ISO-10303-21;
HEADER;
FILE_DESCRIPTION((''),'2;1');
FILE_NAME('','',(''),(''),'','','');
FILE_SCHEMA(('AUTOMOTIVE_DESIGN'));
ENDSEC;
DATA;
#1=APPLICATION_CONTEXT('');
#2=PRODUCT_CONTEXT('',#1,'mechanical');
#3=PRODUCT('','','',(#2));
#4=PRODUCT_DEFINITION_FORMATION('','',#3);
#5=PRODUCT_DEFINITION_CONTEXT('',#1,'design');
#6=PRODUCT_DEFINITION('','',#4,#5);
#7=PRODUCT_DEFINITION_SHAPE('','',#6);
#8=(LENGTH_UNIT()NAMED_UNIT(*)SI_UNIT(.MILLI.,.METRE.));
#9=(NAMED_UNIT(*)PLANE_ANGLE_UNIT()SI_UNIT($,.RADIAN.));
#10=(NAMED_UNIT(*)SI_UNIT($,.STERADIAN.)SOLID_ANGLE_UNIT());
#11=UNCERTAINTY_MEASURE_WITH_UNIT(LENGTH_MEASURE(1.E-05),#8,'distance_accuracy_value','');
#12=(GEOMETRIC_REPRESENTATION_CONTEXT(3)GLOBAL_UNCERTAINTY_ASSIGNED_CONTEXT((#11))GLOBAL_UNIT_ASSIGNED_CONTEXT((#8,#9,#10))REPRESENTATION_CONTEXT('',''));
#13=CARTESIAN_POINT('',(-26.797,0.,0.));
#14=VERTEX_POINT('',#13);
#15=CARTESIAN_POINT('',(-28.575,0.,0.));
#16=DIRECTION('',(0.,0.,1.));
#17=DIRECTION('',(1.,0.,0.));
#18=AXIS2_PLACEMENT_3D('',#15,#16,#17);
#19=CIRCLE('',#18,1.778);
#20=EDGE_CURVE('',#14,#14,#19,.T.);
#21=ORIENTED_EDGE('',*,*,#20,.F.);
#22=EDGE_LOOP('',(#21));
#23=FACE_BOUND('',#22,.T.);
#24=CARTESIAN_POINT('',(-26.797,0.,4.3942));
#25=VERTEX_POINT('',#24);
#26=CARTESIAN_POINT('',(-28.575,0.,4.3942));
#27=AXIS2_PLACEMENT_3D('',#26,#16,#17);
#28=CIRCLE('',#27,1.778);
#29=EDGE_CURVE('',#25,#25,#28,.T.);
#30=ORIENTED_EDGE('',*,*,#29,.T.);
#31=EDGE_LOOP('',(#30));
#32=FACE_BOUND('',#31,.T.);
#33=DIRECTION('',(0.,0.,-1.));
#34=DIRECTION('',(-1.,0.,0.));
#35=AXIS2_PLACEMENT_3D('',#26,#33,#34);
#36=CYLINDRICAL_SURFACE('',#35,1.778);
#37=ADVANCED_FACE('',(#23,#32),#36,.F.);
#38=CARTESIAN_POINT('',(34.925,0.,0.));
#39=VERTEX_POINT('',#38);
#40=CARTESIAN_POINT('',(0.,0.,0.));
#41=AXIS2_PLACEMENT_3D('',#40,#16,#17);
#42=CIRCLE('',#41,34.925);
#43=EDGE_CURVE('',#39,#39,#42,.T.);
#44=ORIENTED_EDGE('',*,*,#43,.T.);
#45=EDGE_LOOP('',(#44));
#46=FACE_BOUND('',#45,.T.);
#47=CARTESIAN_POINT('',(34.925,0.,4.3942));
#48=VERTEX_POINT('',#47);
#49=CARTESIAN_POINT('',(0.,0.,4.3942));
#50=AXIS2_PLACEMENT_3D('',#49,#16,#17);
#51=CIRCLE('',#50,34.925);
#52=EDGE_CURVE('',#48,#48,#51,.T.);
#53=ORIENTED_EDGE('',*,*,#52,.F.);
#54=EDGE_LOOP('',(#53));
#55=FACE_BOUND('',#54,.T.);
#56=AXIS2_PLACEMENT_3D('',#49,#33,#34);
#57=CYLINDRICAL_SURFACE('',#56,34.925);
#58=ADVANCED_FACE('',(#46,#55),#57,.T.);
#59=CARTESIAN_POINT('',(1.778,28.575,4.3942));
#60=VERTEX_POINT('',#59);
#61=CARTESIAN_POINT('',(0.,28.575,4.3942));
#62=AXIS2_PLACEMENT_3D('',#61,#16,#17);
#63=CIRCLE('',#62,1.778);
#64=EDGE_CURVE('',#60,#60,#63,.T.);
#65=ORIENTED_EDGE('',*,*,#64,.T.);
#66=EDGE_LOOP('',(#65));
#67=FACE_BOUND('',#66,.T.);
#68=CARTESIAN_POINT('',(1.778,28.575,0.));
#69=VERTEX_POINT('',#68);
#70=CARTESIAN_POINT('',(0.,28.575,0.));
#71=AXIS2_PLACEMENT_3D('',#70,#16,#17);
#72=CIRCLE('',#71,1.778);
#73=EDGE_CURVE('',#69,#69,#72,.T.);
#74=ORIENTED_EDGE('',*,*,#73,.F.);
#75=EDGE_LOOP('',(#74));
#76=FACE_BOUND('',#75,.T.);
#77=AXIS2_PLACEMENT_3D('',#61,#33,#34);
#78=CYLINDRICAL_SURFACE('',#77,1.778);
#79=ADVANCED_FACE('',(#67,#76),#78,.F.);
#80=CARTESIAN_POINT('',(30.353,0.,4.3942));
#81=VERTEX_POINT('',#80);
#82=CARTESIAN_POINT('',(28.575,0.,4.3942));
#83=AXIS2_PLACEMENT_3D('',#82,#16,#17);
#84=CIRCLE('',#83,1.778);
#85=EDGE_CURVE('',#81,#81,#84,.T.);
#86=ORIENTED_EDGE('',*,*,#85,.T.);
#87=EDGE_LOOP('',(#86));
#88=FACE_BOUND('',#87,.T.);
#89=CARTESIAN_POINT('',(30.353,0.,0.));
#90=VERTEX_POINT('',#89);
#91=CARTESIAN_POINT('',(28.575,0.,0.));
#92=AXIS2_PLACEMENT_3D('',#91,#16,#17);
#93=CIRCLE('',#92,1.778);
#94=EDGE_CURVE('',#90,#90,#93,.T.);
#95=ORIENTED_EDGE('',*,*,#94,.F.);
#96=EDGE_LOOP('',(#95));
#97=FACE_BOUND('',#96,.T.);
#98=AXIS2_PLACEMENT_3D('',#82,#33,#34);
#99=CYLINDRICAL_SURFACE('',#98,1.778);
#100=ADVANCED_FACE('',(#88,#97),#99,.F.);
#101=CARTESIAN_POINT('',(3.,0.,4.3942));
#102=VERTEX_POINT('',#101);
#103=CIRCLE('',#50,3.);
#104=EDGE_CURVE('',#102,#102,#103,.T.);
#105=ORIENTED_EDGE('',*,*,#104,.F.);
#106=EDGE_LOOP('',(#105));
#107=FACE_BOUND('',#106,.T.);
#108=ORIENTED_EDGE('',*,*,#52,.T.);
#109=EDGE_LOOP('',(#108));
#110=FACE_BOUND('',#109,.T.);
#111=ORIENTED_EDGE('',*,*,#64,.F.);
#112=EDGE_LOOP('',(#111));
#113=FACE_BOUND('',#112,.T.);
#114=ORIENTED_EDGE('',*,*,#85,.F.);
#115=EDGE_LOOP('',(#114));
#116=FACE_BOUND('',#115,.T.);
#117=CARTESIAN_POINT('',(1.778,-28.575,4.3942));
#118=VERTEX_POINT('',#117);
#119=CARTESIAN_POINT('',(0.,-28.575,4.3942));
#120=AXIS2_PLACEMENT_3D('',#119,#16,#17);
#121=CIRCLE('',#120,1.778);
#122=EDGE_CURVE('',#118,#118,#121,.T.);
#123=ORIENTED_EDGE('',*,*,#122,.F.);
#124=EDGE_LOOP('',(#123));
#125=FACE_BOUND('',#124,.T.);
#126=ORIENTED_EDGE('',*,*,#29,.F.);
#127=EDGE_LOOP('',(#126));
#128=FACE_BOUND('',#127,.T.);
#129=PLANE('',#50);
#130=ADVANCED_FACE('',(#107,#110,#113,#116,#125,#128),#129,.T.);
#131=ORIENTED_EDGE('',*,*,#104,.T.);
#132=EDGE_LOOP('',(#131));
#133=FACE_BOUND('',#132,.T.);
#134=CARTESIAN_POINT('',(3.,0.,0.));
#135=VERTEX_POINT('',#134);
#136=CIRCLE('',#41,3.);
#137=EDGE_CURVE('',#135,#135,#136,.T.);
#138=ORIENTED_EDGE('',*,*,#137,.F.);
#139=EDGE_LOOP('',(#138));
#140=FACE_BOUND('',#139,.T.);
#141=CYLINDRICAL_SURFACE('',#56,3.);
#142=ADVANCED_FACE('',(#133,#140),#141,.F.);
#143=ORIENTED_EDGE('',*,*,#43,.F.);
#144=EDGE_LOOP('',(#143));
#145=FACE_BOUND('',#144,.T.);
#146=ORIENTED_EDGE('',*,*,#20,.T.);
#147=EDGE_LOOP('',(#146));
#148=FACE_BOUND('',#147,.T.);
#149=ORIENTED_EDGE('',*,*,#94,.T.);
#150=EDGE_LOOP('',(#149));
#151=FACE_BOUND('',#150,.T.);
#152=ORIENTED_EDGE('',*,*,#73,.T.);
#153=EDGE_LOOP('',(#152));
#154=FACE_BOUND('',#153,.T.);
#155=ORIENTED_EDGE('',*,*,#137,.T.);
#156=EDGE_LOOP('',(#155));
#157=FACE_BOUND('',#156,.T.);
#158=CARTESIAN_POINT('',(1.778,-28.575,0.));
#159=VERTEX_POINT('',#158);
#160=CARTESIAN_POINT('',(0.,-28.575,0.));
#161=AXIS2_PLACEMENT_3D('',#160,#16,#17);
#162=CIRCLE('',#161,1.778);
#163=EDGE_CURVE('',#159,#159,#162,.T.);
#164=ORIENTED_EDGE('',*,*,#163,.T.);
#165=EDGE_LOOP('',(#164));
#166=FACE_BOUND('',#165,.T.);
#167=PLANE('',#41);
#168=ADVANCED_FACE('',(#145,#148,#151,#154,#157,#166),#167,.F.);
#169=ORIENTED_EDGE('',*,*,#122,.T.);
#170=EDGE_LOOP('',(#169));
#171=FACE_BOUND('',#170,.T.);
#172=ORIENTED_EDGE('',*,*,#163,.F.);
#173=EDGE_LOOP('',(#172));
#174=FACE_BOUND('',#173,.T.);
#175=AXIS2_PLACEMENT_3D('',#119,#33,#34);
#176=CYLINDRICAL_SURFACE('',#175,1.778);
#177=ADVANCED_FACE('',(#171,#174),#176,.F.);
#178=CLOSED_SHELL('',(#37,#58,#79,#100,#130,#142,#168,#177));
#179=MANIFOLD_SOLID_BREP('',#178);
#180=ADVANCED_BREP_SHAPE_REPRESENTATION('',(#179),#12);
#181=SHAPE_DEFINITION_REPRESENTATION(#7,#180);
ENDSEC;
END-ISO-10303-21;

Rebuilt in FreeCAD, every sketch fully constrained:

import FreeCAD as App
import Part
import Sketcher
Q = App.Units.Quantity

doc = App.newDocument("Part")
body = doc.addObject("PartDesign::Body", "Body")

# Sketch on XY plane
sketch1 = doc.addObject("Sketcher::SketchObject", "Sketch")
body.addObject(sketch1)
sketch1.AttachmentSupport = (doc.XY_Plane, [""])
sketch1.MapMode = "FlatFace"
sketch1.addGeometry([
    Part.Circle(App.Vector(0, 0, 0), App.Vector(0, 0, 1), 34.9),  # 0
    Part.Circle(App.Vector(0, -28.6, 0), App.Vector(0, 0, 1), 1.8),  # 1
    Part.Circle(App.Vector(-28.6, 0, 0), App.Vector(0, 0, 1), 1.8),  # 2
    Part.Circle(App.Vector(0, 0, 0), App.Vector(0, 0, 1), 3),  # 3
    Part.Circle(App.Vector(28.6, 0, 0), App.Vector(0, 0, 1), 1.8),  # 4
    Part.Circle(App.Vector(0, 28.6, 0), App.Vector(0, 0, 1), 1.8),  # 5
], False)
sketch1.addConstraint([
    Sketcher.Constraint("Coincident", 0, 3, -1, 1),
    Sketcher.Constraint("Coincident", 3, 3, -1, 1),
    Sketcher.Constraint("Equal", 1, 2),
    Sketcher.Constraint("Equal", 2, 4),
    Sketcher.Constraint("Equal", 4, 5),
    Sketcher.Constraint("Symmetric", 2, 3, 4, 3, -1, 1),
    Sketcher.Constraint("Symmetric", 1, 3, 5, 3, -1, 1),
    Sketcher.Constraint("PointOnObject", 1, 3, -2),
    Sketcher.Constraint("PointOnObject", 2, 3, -1),
    Sketcher.Constraint("Diameter", 0, Q("2.75 in")),
    Sketcher.Constraint("Diameter", 1, Q("0.14 in")),
    Sketcher.Constraint("Diameter", 3, 6.0),
    Sketcher.Constraint("DistanceX", 2, 3, 4, 3, Q("2.25 in")),
    Sketcher.Constraint("DistanceY", 1, 3, 5, 3, Q("2.25 in")),
])
pad1 = doc.addObject("PartDesign::Pad", "Pad")
body.addObject(pad1)
pad1.Profile = sketch1
pad1.Length = Q("0.173 in")

doc.recompute()
